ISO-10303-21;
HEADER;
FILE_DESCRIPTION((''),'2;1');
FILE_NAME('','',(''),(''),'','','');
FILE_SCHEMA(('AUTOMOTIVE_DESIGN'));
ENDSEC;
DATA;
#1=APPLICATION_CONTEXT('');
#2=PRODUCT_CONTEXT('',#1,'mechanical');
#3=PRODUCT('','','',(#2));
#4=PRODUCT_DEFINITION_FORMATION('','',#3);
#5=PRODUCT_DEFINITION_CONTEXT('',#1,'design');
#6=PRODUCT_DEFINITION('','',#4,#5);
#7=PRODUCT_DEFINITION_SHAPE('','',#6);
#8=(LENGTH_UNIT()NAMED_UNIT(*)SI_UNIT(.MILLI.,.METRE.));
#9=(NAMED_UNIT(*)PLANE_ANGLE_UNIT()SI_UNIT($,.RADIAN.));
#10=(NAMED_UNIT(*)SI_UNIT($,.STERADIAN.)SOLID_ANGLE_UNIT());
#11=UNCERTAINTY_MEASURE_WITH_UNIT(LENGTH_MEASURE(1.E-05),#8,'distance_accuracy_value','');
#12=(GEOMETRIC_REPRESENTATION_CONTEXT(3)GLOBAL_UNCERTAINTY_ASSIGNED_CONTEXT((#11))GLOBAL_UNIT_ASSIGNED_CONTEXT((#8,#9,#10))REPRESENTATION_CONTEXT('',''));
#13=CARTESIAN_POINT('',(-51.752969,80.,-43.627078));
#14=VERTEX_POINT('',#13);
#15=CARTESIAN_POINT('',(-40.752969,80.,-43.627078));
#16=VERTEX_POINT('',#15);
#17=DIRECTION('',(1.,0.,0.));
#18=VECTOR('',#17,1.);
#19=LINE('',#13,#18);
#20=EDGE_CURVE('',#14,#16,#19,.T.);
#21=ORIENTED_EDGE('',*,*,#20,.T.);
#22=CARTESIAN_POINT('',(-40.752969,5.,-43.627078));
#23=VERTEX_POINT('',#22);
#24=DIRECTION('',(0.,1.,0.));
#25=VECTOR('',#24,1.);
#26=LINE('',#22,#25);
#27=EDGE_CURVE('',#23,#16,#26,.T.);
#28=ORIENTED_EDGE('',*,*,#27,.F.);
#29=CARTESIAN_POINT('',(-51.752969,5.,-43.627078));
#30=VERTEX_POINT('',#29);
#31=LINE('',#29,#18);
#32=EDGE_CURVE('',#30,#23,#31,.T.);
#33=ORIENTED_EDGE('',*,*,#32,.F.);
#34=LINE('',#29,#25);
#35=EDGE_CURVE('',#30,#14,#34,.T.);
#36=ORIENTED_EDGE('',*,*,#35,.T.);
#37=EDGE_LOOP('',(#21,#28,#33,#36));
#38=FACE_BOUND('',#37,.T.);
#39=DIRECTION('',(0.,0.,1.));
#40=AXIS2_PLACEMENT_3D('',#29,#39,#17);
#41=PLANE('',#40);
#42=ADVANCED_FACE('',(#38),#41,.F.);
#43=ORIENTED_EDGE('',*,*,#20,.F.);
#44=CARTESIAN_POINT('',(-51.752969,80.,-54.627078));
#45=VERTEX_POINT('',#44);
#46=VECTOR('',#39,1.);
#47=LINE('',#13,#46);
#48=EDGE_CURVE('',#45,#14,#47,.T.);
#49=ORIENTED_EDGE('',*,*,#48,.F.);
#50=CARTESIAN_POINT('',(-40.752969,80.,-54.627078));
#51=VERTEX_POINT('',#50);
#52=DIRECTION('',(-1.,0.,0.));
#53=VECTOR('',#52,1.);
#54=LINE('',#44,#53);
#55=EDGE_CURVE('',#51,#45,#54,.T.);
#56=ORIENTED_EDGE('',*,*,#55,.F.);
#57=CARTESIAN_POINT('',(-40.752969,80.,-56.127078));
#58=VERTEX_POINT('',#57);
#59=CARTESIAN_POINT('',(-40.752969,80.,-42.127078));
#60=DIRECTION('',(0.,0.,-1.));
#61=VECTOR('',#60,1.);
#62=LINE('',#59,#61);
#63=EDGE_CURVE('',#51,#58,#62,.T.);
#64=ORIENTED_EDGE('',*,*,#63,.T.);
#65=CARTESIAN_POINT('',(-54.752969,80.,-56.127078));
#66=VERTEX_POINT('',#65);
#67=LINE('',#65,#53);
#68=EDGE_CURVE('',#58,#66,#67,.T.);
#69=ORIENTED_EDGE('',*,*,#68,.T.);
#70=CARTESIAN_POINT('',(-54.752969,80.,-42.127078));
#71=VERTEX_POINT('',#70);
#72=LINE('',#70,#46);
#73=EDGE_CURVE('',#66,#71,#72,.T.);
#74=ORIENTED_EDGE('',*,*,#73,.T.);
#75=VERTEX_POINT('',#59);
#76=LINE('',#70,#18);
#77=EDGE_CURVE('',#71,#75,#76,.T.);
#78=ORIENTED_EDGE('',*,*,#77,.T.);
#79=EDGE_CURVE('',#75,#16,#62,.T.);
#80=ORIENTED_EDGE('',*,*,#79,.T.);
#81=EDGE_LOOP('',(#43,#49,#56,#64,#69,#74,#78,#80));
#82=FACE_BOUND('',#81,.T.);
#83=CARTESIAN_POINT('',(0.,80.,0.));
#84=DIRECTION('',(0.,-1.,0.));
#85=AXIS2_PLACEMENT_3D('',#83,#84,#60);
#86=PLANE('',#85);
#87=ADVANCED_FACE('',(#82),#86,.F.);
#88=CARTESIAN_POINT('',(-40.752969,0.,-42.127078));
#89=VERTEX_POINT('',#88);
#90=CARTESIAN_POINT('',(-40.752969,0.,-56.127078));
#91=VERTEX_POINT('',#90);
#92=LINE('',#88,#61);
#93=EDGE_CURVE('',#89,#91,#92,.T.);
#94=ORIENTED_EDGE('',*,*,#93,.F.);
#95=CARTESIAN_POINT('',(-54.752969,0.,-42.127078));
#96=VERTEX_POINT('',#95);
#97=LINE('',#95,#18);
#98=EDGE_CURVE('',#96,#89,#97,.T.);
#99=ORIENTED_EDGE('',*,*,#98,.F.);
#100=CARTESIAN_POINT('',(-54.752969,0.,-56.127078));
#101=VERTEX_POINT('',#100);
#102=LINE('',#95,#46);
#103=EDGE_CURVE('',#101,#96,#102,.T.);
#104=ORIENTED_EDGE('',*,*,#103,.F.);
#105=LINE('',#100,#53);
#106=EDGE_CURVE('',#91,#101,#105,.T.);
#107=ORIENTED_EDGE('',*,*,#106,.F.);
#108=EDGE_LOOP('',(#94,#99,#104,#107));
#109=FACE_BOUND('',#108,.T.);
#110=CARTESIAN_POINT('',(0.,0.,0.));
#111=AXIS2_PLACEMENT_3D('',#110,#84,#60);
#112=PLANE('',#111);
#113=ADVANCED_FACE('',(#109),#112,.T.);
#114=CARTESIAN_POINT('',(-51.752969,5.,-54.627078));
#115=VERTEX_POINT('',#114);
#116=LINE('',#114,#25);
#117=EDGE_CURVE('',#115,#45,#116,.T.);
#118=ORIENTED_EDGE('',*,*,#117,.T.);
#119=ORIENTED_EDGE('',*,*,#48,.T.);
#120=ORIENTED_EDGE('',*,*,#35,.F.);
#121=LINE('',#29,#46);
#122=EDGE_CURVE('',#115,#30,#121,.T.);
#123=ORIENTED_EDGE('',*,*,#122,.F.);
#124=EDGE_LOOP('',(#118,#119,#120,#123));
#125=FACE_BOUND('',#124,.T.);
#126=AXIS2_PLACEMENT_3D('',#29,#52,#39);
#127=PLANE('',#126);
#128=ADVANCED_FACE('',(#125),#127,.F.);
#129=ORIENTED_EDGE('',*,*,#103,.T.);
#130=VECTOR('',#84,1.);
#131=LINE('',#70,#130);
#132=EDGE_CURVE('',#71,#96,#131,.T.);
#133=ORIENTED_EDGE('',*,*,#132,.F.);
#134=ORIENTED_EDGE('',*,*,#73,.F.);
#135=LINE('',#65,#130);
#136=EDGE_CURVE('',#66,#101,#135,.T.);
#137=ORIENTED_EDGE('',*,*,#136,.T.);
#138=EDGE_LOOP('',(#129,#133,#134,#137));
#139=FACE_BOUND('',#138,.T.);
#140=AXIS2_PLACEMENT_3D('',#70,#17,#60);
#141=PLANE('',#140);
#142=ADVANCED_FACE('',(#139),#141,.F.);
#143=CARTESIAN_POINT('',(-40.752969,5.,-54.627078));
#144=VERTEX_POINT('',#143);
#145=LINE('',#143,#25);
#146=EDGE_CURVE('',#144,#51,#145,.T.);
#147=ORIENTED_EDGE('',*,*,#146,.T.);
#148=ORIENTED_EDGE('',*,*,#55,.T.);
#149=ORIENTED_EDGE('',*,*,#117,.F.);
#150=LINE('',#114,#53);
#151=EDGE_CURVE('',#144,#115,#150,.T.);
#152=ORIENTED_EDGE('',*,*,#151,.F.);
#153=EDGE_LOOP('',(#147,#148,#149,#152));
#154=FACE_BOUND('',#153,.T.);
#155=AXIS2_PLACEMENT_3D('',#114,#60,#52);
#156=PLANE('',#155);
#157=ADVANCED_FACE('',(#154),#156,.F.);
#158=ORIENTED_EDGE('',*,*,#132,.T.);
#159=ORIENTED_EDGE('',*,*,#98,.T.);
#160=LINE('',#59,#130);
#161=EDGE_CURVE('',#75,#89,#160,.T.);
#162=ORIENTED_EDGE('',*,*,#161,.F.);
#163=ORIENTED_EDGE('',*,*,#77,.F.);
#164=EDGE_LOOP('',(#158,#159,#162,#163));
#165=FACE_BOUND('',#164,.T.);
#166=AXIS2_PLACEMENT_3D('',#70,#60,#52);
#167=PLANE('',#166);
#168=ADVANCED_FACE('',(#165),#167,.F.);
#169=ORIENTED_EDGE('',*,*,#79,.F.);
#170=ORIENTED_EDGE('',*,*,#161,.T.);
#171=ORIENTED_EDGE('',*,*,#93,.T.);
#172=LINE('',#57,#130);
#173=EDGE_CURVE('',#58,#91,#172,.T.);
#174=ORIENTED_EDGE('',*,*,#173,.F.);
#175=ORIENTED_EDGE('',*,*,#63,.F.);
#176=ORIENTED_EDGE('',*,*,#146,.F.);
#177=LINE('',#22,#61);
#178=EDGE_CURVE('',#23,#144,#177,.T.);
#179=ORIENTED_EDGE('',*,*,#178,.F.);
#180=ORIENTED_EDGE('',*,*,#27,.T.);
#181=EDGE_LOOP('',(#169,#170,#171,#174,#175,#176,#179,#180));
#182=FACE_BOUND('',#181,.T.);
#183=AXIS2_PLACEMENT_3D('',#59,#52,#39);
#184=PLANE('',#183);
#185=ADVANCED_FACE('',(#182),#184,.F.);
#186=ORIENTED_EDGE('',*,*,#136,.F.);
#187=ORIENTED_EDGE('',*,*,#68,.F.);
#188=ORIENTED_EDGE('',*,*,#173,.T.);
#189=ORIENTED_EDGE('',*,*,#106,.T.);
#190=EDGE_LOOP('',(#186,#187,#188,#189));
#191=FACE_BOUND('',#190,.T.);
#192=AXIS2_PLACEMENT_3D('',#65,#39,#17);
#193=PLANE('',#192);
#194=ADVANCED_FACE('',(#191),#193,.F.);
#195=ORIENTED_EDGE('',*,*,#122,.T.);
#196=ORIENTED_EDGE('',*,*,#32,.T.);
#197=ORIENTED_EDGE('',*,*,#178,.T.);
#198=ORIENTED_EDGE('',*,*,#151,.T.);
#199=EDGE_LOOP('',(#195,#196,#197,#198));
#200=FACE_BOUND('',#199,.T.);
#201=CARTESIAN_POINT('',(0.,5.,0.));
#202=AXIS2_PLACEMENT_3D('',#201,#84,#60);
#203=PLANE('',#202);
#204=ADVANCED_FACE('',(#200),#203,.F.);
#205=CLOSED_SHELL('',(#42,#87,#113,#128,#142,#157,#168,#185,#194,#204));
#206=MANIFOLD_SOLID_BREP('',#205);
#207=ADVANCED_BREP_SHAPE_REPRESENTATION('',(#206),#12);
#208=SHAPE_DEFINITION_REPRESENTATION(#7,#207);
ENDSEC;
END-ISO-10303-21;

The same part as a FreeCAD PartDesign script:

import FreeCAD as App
import Part
import Sketcher
Q = App.Units.Quantity

doc = App.newDocument("Part")
body = doc.addObject("PartDesign::Body", "Body")

# Sketch on XZ plane
sketch1 = doc.addObject("Sketcher::SketchObject", "Sketch")
body.addObject(sketch1)
sketch1.AttachmentSupport = (doc.XZ_Plane, [""])
sketch1.MapMode = "FlatFace"
sketch1.addGeometry([
    Part.LineSegment(App.Vector(-55, -56, 0), App.Vector(-55, -42, 0)),
    Part.LineSegment(App.Vector(-55, -42, 0), App.Vector(-41, -42, 0)),
    Part.LineSegment(App.Vector(-41, -42, 0), App.Vector(-41, -56, 0)),
    Part.LineSegment(App.Vector(-41, -56, 0), App.Vector(-55, -56, 0)),
], False)
sketch1.addConstraint([
    Sketcher.Constraint("Coincident", 0, 2, 1, 1),
    Sketcher.Constraint("Coincident", 1, 2, 2, 1),
    Sketcher.Constraint("Coincident", 2, 2, 3, 1),
    Sketcher.Constraint("Coincident", 3, 2, 0, 1),
    Sketcher.Constraint("Vertical", 0),
    Sketcher.Constraint("Horizontal", 1),
    Sketcher.Constraint("Vertical", 2),
    Sketcher.Constraint("Horizontal", 3),
    Sketcher.Constraint("Equal", 3, 0),
    Sketcher.Constraint("DistanceX", 1, 1, 1, 2, Q("14 mm")),
    Sketcher.Constraint("DistanceX", 0, 2, -1, 1, Q("54.752969 mm")),
    Sketcher.Constraint("DistanceY", 0, 2, -1, 1, Q("42.127078 mm")),
])
pad1 = doc.addObject("PartDesign::Pad", "Pad")
body.addObject(pad1)
pad1.Profile = sketch1
pad1.Length = 80
pad1.Reversed = True

# Sketch on XZ plane
sketch2 = doc.addObject("Sketcher::SketchObject", "Sketch001")
body.addObject(sketch2)
sketch2.AttachmentSupport = (doc.XZ_Plane, [""])
sketch2.MapMode = "FlatFace"
sketch2.AttachmentOffset = App.Placement(App.Vector(0, 0, -80), App.Rotation())
sketch2.addGeometry([
    Part.LineSegment(App.Vector(-52, -55, 0), App.Vector(-52, -44, 0)),
    Part.LineSegment(App.Vector(-52, -44, 0), App.Vector(-41, -44, 0)),
    Part.LineSegment(App.Vector(-41, -44, 0), App.Vector(-41, -55, 0)),
    Part.LineSegment(App.Vector(-41, -55, 0), App.Vector(-52, -55, 0)),
], False)
sketch2.addConstraint([
    Sketcher.Constraint("Coincident", 0, 2, 1, 1),
    Sketcher.Constraint("Coincident", 1, 2, 2, 1),
    Sketcher.Constraint("Coincident", 2, 2, 3, 1),
    Sketcher.Constraint("Coincident", 3, 2, 0, 1),
    Sketcher.Constraint("Vertical", 0),
    Sketcher.Constraint("Horizontal", 1),
    Sketcher.Constraint("Vertical", 2),
    Sketcher.Constraint("Horizontal", 3),
    Sketcher.Constraint("Equal", 3, 0),
    Sketcher.Constraint("DistanceX", 1, 1, 1, 2, Q("11 mm")),
    Sketcher.Constraint("DistanceX", 0, 2, -1, 1, Q("51.752969 mm")),
    Sketcher.Constraint("DistanceY", 0, 2, -1, 1, Q("43.627078 mm")),
])
pocket1 = doc.addObject("PartDesign::Pocket", "Pocket")
body.addObject(pocket1)
pocket1.Profile = sketch2
pocket1.Length = 75
pocket1.Reversed = True

doc.recompute()
